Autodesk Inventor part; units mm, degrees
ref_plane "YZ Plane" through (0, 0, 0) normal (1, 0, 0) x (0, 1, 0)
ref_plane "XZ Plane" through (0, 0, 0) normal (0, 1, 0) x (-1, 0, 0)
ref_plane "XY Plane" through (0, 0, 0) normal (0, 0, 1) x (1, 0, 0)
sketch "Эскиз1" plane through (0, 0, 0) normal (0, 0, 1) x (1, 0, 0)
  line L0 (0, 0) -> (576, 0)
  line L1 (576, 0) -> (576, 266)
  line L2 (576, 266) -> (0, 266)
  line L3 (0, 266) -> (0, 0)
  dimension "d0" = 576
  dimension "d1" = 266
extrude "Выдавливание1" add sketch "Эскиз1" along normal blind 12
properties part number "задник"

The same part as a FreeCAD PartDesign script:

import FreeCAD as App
import Part
import Sketcher
from FreeCAD import Vector

doc = App.newDocument("Part")
body = doc.addObject("PartDesign::Body", "Body")

sketch1 = doc.addObject("Sketcher::SketchObject", "Sketch")
body.addObject(sketch1)
sketch1.AttachmentSupport = (doc.XY_Plane, [""])
sketch1.MapMode = "FlatFace"
sketch1.addGeometry([
    Part.LineSegment(Vector(0, 266, 0), Vector(0, 0, 0)),
    Part.LineSegment(Vector(0, 0, 0), Vector(576, 0, 0)),
    Part.LineSegment(Vector(576, 0, 0), Vector(576, 266, 0)),
    Part.LineSegment(Vector(576, 266, 0), Vector(0, 266, 0)),
], False)
sketch1.addConstraint([
    Sketcher.Constraint("Coincident", 0, 2, 1, 1),
    Sketcher.Constraint("Coincident", 1, 2, 2, 1),
    Sketcher.Constraint("Coincident", 2, 2, 3, 1),
    Sketcher.Constraint("Coincident", 3, 2, 0, 1),
    Sketcher.Constraint("Vertical", 0),
    Sketcher.Constraint("Horizontal", 1),
    Sketcher.Constraint("Vertical", 2),
    Sketcher.Constraint("Horizontal", 3),
    Sketcher.Constraint("Coincident", 0, 2, -1, 1),
    Sketcher.Constraint("DistanceX", 1, 1, 1, 2, 576.0),
    Sketcher.Constraint("DistanceY", 0, 2, 0, 1, 266.0),
])
pad1 = doc.addObject("PartDesign::Pad", "Pad")
body.addObject(pad1)
pad1.Profile = sketch1
pad1.Length = 12

doc.recompute()
